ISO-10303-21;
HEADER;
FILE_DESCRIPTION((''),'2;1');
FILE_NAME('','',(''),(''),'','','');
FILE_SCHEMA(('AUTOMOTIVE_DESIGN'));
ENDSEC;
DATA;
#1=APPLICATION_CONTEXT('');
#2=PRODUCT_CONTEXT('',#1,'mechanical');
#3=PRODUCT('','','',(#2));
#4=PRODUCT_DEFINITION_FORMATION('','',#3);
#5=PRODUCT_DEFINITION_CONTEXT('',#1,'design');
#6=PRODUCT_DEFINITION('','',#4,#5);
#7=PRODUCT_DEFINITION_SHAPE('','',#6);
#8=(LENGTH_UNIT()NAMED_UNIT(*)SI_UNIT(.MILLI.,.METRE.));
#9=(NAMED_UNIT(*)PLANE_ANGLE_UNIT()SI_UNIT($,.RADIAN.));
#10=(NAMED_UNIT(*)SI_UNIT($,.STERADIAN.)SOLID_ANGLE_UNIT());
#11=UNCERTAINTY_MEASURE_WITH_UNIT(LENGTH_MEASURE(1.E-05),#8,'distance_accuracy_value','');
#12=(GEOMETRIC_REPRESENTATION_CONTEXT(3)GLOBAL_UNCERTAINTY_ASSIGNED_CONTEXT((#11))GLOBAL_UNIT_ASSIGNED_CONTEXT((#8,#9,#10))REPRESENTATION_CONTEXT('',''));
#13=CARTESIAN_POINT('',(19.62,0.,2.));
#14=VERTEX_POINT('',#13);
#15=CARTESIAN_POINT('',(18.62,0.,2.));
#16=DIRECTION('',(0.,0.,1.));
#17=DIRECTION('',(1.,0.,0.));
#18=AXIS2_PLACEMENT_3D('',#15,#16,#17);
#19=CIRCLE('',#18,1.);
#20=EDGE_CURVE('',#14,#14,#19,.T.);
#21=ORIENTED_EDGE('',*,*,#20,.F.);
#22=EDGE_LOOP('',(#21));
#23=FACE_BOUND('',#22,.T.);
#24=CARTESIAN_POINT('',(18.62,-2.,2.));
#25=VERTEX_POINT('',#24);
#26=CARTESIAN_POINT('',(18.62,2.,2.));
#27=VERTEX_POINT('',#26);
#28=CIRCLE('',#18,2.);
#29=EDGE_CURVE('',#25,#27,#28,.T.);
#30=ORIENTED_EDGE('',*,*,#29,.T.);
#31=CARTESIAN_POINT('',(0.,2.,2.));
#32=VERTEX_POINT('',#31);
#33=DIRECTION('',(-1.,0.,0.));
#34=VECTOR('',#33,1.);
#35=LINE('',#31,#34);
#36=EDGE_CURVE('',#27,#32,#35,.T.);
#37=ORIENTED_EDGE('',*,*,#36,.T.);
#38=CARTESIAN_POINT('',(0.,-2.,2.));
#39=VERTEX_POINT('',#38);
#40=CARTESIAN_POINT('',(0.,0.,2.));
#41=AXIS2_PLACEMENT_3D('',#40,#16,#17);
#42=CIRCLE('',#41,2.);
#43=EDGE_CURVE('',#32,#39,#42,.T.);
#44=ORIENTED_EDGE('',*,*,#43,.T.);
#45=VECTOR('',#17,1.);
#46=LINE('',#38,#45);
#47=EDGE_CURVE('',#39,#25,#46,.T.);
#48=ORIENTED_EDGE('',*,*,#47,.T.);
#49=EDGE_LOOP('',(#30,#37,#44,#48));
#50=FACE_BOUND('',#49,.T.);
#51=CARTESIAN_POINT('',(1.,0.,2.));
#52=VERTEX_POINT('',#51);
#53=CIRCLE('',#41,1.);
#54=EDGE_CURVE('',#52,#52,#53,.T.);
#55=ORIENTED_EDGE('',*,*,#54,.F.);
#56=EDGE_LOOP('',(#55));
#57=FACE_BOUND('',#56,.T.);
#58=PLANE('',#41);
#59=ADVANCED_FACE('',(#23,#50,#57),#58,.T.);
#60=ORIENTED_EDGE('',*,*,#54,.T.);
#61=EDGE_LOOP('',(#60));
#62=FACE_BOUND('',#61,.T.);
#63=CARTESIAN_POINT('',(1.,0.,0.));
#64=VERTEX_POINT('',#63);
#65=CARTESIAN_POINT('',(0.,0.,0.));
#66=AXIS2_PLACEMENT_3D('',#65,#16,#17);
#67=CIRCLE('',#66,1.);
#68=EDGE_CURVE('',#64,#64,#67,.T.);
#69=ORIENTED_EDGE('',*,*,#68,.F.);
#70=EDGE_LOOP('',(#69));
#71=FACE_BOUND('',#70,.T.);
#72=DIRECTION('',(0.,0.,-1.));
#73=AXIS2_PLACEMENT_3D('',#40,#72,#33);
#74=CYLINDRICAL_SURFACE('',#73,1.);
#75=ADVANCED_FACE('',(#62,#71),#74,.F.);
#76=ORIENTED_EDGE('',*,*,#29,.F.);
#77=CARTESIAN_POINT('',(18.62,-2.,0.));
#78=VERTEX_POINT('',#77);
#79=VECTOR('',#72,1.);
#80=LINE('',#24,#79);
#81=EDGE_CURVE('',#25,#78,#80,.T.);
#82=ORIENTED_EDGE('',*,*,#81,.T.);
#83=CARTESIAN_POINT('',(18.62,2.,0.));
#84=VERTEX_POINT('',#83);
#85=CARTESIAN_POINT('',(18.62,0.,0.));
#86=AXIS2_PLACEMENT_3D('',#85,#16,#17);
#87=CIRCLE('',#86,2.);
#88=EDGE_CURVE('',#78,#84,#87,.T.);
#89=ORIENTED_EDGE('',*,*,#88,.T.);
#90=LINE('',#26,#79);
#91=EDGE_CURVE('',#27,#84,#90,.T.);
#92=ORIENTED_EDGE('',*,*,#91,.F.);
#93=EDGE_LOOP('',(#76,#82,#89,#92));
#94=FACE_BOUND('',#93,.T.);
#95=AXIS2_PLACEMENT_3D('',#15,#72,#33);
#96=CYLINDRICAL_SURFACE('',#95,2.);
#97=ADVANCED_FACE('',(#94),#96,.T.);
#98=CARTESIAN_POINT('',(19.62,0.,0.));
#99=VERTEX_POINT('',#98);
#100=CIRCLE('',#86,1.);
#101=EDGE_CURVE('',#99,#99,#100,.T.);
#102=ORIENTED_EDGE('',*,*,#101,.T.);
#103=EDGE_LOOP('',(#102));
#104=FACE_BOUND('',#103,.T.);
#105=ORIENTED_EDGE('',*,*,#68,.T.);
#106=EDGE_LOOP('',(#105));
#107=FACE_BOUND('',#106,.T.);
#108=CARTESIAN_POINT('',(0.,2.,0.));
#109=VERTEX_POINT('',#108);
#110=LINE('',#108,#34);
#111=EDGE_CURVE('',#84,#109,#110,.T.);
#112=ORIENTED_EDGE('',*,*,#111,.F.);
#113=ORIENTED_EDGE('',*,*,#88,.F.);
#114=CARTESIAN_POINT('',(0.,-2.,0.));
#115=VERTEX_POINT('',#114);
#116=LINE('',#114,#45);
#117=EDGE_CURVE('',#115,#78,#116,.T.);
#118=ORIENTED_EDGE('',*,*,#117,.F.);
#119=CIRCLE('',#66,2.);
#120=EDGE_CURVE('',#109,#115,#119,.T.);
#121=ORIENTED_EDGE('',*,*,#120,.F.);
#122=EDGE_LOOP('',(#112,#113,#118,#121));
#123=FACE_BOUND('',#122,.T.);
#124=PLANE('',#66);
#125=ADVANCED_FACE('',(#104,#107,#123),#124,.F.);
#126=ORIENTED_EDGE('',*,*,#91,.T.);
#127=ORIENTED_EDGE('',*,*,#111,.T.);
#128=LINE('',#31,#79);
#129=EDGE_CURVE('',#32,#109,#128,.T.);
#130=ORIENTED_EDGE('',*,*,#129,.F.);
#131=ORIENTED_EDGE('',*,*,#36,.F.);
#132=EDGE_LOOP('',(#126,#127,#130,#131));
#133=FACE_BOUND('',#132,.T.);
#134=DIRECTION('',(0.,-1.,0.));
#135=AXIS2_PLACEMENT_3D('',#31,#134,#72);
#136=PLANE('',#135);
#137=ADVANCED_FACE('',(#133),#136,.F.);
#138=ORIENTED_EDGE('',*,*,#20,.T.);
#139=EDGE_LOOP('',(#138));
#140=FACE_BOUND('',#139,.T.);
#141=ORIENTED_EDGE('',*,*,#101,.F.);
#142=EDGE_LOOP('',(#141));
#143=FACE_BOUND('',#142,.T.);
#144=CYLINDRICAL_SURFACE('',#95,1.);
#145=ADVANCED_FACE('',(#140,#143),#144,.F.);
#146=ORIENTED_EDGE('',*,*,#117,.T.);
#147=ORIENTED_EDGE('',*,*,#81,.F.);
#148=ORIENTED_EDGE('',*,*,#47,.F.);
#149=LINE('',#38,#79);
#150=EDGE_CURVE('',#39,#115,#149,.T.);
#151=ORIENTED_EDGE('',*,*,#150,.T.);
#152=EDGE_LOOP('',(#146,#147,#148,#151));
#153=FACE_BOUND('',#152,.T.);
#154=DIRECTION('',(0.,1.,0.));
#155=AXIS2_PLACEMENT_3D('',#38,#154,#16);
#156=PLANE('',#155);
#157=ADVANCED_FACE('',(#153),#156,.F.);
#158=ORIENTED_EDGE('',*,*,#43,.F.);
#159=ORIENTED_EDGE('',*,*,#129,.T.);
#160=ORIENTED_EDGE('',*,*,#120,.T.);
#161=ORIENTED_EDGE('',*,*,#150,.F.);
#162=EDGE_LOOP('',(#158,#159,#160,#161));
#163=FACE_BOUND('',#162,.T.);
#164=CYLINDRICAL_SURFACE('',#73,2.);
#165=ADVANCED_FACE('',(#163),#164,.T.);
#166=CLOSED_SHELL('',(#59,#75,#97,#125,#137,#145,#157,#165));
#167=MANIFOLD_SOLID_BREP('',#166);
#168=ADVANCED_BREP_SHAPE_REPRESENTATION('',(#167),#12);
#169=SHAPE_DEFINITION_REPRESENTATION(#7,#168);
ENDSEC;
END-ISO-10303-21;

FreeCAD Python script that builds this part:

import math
import FreeCAD as App
import Part
import Sketcher

doc = App.newDocument("Part")
body = doc.addObject("PartDesign::Body", "Body")

sketch1 = body.newObject("Sketcher::SketchObject", "Sketch")
sketch1.AttachmentSupport = (doc.getObject("XY_Plane"), [""])
sketch1.MapMode = "FlatFace"
sketch1.addGeometry([
    Part.LineSegment(App.Vector(18.6, 2, 0), App.Vector(0, 2, 0)),
    Part.ArcOfCircle(Part.Circle(App.Vector(0, 0, 0), App.Vector(0, 0, 1), 2), math.radians(90), math.radians(270)),
    Part.LineSegment(App.Vector(0, -2, 0), App.Vector(18.6, -2, 0)),
    Part.ArcOfCircle(Part.Circle(App.Vector(18.6, 0, 0), App.Vector(0, 0, 1), 2), math.radians(-90), math.radians(90)),
    Part.Circle(App.Vector(18.6, 0, 0), App.Vector(0, 0, 1), 1),
    Part.Circle(App.Vector(0, 0, 0), App.Vector(0, 0, 1), 1),
], False)
sketch1.addConstraint([
    Sketcher.Constraint("Tangent", 0, 2, 1, 1),
    Sketcher.Constraint("Tangent", 1, 2, 2, 1),
    Sketcher.Constraint("Tangent", 2, 2, 3, 1),
    Sketcher.Constraint("Tangent", 3, 2, 0, 1),
    Sketcher.Constraint("Horizontal", 0),
    Sketcher.Constraint("Horizontal", 2),
    Sketcher.Constraint("Coincident", 1, 3, -1, 1),
    Sketcher.Constraint("Coincident", 5, 3, -1, 1),
    Sketcher.Constraint("Coincident", 4, 3, 3, 3),
    Sketcher.Constraint("Equal", 4, 5),
    Sketcher.Constraint("Diameter", 4, 2.0),
    Sketcher.Constraint("Radius", 1, 2.0),
    Sketcher.Constraint("DistanceX", 0, 2, 0, 1, 18.62),
])
pad1 = body.newObject("PartDesign::Pad", "Pad")
pad1.Profile = sketch1
pad1.Length = 2

doc.recompute()
